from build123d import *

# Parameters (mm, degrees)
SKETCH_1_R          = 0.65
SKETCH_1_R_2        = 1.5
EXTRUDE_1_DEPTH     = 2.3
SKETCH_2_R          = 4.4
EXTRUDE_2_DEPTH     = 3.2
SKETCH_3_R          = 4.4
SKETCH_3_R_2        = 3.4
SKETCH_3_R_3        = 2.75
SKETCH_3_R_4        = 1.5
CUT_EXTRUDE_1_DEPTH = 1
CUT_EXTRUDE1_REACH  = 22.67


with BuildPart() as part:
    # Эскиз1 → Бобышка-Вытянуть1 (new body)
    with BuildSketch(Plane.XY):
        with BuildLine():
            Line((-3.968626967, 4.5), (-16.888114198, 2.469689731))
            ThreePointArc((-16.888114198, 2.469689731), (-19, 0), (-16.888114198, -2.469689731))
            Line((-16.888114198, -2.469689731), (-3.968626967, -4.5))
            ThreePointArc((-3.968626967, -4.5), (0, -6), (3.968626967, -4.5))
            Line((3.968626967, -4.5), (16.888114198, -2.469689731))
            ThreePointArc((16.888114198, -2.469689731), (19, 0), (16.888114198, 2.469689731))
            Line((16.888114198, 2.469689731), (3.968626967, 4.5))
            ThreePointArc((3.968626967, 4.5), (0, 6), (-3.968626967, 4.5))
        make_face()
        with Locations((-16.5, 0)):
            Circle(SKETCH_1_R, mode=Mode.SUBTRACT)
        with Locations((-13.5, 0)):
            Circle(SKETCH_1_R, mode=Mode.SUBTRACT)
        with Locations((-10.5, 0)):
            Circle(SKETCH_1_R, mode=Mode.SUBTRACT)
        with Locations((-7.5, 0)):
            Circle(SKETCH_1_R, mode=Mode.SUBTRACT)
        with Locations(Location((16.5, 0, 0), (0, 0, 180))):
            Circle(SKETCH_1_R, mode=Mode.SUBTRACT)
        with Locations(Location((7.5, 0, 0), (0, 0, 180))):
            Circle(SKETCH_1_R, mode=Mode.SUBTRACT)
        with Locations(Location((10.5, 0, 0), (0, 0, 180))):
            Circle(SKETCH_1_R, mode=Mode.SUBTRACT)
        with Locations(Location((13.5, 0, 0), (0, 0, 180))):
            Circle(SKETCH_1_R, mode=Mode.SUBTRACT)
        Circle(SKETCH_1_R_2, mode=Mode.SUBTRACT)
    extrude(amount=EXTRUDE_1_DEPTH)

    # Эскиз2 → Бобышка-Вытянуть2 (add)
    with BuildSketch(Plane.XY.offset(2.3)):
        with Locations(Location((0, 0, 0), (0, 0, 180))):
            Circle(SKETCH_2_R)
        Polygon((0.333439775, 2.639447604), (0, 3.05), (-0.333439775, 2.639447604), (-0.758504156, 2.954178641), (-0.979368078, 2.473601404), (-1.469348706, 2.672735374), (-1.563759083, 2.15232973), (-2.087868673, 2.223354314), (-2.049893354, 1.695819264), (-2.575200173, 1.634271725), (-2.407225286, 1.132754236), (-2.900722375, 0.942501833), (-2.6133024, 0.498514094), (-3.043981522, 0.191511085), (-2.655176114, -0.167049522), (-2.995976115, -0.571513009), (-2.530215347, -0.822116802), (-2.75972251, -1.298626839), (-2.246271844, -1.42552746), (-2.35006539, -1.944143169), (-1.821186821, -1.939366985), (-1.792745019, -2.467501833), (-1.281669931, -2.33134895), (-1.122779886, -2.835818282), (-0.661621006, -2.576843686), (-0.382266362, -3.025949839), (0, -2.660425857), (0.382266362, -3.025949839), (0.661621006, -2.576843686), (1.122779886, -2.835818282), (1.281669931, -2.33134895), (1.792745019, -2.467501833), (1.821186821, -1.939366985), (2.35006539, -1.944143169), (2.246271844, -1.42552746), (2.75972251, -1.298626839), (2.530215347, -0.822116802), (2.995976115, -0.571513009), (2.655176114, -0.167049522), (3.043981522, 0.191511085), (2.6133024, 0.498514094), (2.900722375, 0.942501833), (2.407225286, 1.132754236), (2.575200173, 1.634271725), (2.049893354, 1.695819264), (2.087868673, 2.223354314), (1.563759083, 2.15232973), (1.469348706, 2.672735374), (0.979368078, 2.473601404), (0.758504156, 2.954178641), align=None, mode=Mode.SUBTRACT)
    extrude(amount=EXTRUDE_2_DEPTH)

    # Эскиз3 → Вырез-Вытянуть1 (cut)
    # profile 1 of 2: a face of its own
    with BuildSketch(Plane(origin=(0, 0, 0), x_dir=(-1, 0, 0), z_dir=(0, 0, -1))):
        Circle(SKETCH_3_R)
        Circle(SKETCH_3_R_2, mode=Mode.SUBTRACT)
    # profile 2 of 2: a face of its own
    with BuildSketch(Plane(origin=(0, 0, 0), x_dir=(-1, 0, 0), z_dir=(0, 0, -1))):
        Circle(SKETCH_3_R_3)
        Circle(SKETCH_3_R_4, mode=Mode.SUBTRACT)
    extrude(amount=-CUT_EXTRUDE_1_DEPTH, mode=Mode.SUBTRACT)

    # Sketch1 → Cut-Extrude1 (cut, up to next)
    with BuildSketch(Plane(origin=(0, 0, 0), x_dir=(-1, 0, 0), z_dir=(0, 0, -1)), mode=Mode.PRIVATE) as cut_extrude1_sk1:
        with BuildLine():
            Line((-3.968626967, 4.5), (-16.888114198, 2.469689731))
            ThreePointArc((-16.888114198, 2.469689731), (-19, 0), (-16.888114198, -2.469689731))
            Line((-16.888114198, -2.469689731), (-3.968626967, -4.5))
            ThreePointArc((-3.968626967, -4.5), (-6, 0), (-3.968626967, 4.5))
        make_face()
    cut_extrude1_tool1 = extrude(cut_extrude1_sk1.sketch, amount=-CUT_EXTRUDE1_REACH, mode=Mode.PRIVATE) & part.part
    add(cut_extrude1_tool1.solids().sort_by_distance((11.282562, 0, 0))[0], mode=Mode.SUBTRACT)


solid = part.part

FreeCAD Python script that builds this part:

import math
import FreeCAD as App
import Part
import Sketcher
from FreeCAD import Vector


def add_polygon(sketch, points):
    """Adds a closed chain of lines whose ends are joined by coincident constraints."""
    first, n = sketch.GeometryCount, len(points)
    for a, b in zip(points, points[1:] + points[:1]):
        sketch.addGeometry(Part.LineSegment(App.Vector(*a, 0), App.Vector(*b, 0)), False)
    for i in range(n):
        sketch.addConstraint(Sketcher.Constraint("Coincident", first + i, 2, first + (i + 1) % n, 1))

doc = App.newDocument("Part")
body = doc.addObject("PartDesign::Body", "Body")

# Sketch on XY plane
sketch1 = body.newObject("Sketcher::SketchObject", "Sketch")
sketch1.AttachmentSupport = (doc.getObject("XY_Plane"), [""])
sketch1.MapMode = "FlatFace"
sketch1.addGeometry([
    Part.LineSegment(Vector(-3.968627, 4.5, 0), Vector(-16.888114, 2.46969, 0)),  # 0
    Part.ArcOfCircle(Part.Circle(Vector(-16.5, 0, 0), Vector(0, 0, 1), 2.5), math.radians(98.931045), math.radians(261.068955)),  # 1
    Part.LineSegment(Vector(-16.888114, -2.46969, 0), Vector(-3.968627, -4.5, 0)),  # 2
    Part.ArcOfCircle(Part.Circle(Vector(0, 0, 0), Vector(0, 0, 1), 6), math.radians(-131.409622), math.radians(-48.590378)),  # 3
    Part.LineSegment(Vector(3.968627, -4.5, 0), Vector(16.888114, -2.46969, 0)),  # 4
    Part.ArcOfCircle(Part.Circle(Vector(16.5, 0, 0), Vector(0, 0, 1), 2.5), math.radians(-81.068955), math.radians(81.068955)),  # 5
    Part.LineSegment(Vector(16.888114, 2.46969, 0), Vector(3.968627, 4.5, 0)),  # 6
    Part.ArcOfCircle(Part.Circle(Vector(0, 0, 0), Vector(0, 0, 1), 6), math.radians(48.590378), math.radians(131.409622)),  # 7
    Part.Circle(Vector(-16.5, 0, 0), Vector(0, 0, 1), 0.65),  # 8
    Part.Circle(Vector(-13.5, 0, 0), Vector(0, 0, 1), 0.65),  # 9
    Part.Circle(Vector(-10.5, 0, 0), Vector(0, 0, 1), 0.65),  # 10
    Part.Circle(Vector(-7.5, 0, 0), Vector(0, 0, 1), 0.65),  # 11
    Part.Circle(Vector(0, 0, 0), Vector(0, 0, 1), 1.5),  # 12
    Part.Circle(Vector(7.5, 0, 0), Vector(0, 0, 1), 0.65),  # 13
    Part.Circle(Vector(10.5, 0, 0), Vector(0, 0, 1), 0.65),  # 14
    Part.Circle(Vector(13.5, 0, 0), Vector(0, 0, 1), 0.65),  # 15
    Part.Circle(Vector(16.5, 0, 0), Vector(0, 0, 1), 0.65),  # 16
], False)
sketch1.addConstraint([
    Sketcher.Constraint("Tangent", 0, 2, 1, 1),
    Sketcher.Constraint("Tangent", 1, 2, 2, 1),
    Sketcher.Constraint("Coincident", 2, 2, 3, 1),
    Sketcher.Constraint("Coincident", 3, 2, 4, 1),
    Sketcher.Constraint("Tangent", 4, 2, 5, 1),
    Sketcher.Constraint("Tangent", 5, 2, 6, 1),
    Sketcher.Constraint("Coincident", 6, 2, 7, 1),
    Sketcher.Constraint("Coincident", 7, 2, 0, 1),
    Sketcher.Constraint("Coincident", 3, 3, -1, 1),
    Sketcher.Constraint("Coincident", 7, 3, -1, 1),
    Sketcher.Constraint("Coincident", 12, 3, -1, 1),
    Sketcher.Constraint("Coincident", 8, 3, 1, 3),
    Sketcher.Constraint("Coincident", 16, 3, 5, 3),
    Sketcher.Constraint("Equal", 1, 5),
    Sketcher.Constraint("Equal", 3, 7),
    Sketcher.Constraint("Equal", 8, 9),
    Sketcher.Constraint("Equal", 9, 10),
    Sketcher.Constraint("Equal", 10, 11),
    Sketcher.Constraint("Equal", 11, 13),
    Sketcher.Constraint("Equal", 13, 14),
    Sketcher.Constraint("Equal", 14, 15),
    Sketcher.Constraint("Equal", 15, 16),
    Sketcher.Constraint("Symmetric", 1, 3, 5, 3, -1, 1),
    Sketcher.Constraint("Symmetric", 11, 3, 13, 3, -1, 1),
    Sketcher.Constraint("Symmetric", 10, 3, 14, 3, -1, 1),
    Sketcher.Constraint("Symmetric", 9, 3, 15, 3, -1, 1),
    Sketcher.Constraint("Symmetric", 1, 2, 4, 2, -2),
    Sketcher.Constraint("PointOnObject", 9, 3, -1),
    Sketcher.Constraint("PointOnObject", 10, 3, -1),
    Sketcher.Constraint("PointOnObject", 11, 3, -1),
    Sketcher.Constraint("Parallel", 0, 4),
    Sketcher.Constraint("Parallel", 2, 6),
    Sketcher.Constraint("Diameter", 12, 3.0),
    Sketcher.Constraint("Radius", 3, 6.0),
    Sketcher.Constraint("Diameter", 8, 1.3),
    Sketcher.Constraint("Radius", 1, 2.5),
    Sketcher.Constraint("DistanceX", 1, 3, 5, 3, 33.0),
    Sketcher.Constraint("DistanceX", 1, 3, 9, 3, 3.0),
    Sketcher.Constraint("DistanceX", 9, 3, 10, 3, 3.0),
    Sketcher.Constraint("DistanceX", 10, 3, 11, 3, 3.0),
    Sketcher.Constraint("DistanceY", 2, 2, -1, 1, 4.5),
])
pad1 = body.newObject("PartDesign::Pad", "Pad")
pad1.Profile = sketch1
pad1.Length = 2.3

# Sketch on XY plane
sketch2 = body.newObject("Sketcher::SketchObject", "Sketch001")
sketch2.AttachmentSupport = (doc.getObject("XY_Plane"), [""])
sketch2.MapMode = "FlatFace"
sketch2.AttachmentOffset = App.Placement(Vector(0, 0, 2.3), App.Rotation())
sketch2.addGeometry(Part.Circle(Vector(0, 0, 0), Vector(0, 0, 1), 4.4), False)  # 0
add_polygon(sketch2, [(0, 3.05), (0.33344, 2.639448), (0.758504, 2.954179), (0.979368, 2.473601), (1.469349, 2.672735), (1.563759, 2.15233), (2.087869, 2.223354), (2.049893, 1.695819), (2.5752, 1.634272), (2.407225, 1.132754), (2.900722, 0.942502), (2.613302, 0.498514), (3.043982, 0.191511), (2.655176, -0.16705), (2.995976, -0.571513), (2.530215, -0.822117), (2.759723, -1.298627), (2.246272, -1.425527), (2.350065, -1.944143), (1.821187, -1.939367), (1.792745, -2.467502), (1.28167, -2.331349), (1.12278, -2.835818), (0.661621, -2.576844), (0.382266, -3.02595), (0, -2.660426), (-0.382266, -3.02595), (-0.661621, -2.576844), (-1.12278, -2.835818), (-1.28167, -2.331349), (-1.792745, -2.467502), (-1.821187, -1.939367), (-2.350065, -1.944143), (-2.246272, -1.425527), (-2.759723, -1.298627), (-2.530215, -0.822117), (-2.995976, -0.571513), (-2.655176, -0.16705), (-3.043982, 0.191511), (-2.613302, 0.498514), (-2.900722, 0.942502), (-2.407225, 1.132754), (-2.5752, 1.634272), (-2.049893, 1.695819), (-2.087869, 2.223354), (-1.563759, 2.15233), (-1.469349, 2.672735), (-0.979368, 2.473601), (-0.758504, 2.954179), (-0.33344, 2.639448)])  # lines 1-50
sketch2.addConstraint([
    Sketcher.Constraint("Coincident", 0, 3, -1, 1),
    Sketcher.Constraint("Symmetric", 24, 2, 26, 2, -2),
    Sketcher.Constraint("Symmetric", 23, 2, 27, 2, -2),
    Sketcher.Constraint("Symmetric", 22, 2, 28, 2, -2),
    Sketcher.Constraint("Symmetric", 21, 2, 29, 2, -2),
    Sketcher.Constraint("Symmetric", 20, 2, 30, 2, -2),
    Sketcher.Constraint("Symmetric", 19, 2, 31, 2, -2),
    Sketcher.Constraint("Symmetric", 18, 2, 32, 2, -2),
    Sketcher.Constraint("Symmetric", 17, 2, 33, 2, -2),
    Sketcher.Constraint("Symmetric", 16, 2, 34, 2, -2),
    Sketcher.Constraint("Symmetric", 15, 2, 35, 2, -2),
    Sketcher.Constraint("Symmetric", 14, 2, 36, 2, -2),
    Sketcher.Constraint("Symmetric", 13, 2, 37, 2, -2),
    Sketcher.Constraint("Symmetric", 12, 2, 38, 2, -2),
    Sketcher.Constraint("Symmetric", 11, 2, 39, 2, -2),
    Sketcher.Constraint("Symmetric", 10, 2, 40, 2, -2),
    Sketcher.Constraint("Symmetric", 9, 2, 41, 2, -2),
    Sketcher.Constraint("Symmetric", 8, 2, 42, 2, -2),
    Sketcher.Constraint("Symmetric", 7, 2, 43, 2, -2),
    Sketcher.Constraint("Symmetric", 6, 2, 44, 2, -2),
    Sketcher.Constraint("Symmetric", 5, 2, 45, 2, -2),
    Sketcher.Constraint("Symmetric", 4, 2, 46, 2, -2),
    Sketcher.Constraint("Symmetric", 3, 2, 47, 2, -2),
    Sketcher.Constraint("Symmetric", 2, 2, 48, 2, -2),
    Sketcher.Constraint("Symmetric", 1, 2, 49, 2, -2),
    Sketcher.Constraint("PointOnObject", 25, 2, -2),
    Sketcher.Constraint("PointOnObject", 50, 2, -2),
    Sketcher.Constraint("Equal", 1, 2),
    Sketcher.Constraint("Equal", 2, 3),
    Sketcher.Constraint("Equal", 3, 4),
    Sketcher.Constraint("Equal", 4, 5),
    Sketcher.Constraint("Equal", 5, 6),
    Sketcher.Constraint("Equal", 6, 7),
    Sketcher.Constraint("Equal", 7, 8),
    Sketcher.Constraint("Equal", 8, 9),
    Sketcher.Constraint("Equal", 9, 10),
    Sketcher.Constraint("Equal", 10, 11),
    Sketcher.Constraint("Equal", 11, 12),
    Sketcher.Constraint("Equal", 12, 13),
    Sketcher.Constraint("Equal", 13, 14),
    Sketcher.Constraint("Equal", 14, 15),
    Sketcher.Constraint("Equal", 15, 16),
    Sketcher.Constraint("Equal", 16, 17),
    Sketcher.Constraint("Equal", 17, 18),
    Sketcher.Constraint("Equal", 18, 19),
    Sketcher.Constraint("Equal", 19, 20),
    Sketcher.Constraint("Equal", 20, 21),
    Sketcher.Constraint("Equal", 21, 22),
    Sketcher.Constraint("Equal", 22, 23),
    Sketcher.Constraint("Equal", 23, 24),
    Sketcher.Constraint("Equal", 24, 25),
    Sketcher.Constraint("Diameter", 0, 8.8),
    Sketcher.Constraint("DistanceY", -1, 1, 50, 2, 3.05),
    Sketcher.Constraint("Distance", 1, 0.5289),
    Sketcher.Constraint("DistanceY", -1, 1, 3, 2, 2.473601),
    Sketcher.Constraint("DistanceX", -1, 1, 8, 2, 2.5752),
    Sketcher.Constraint("DistanceY", -1, 1, 10, 2, 0.942502),
    Sketcher.Constraint("DistanceY", 20, 2, -1, 1, 2.467502),
    Sketcher.Constraint("DistanceX", 3, 2, 6, 2, 1.108501),
    Sketcher.Constraint("DistanceY", 9, 2, 6, 2, 1.0906),
    Sketcher.Constraint("DistanceX", 13, 2, 14, 2, 0.3408),
    Sketcher.Constraint("DistanceY", 17, 2, 16, 2, 0.126901),
    Sketcher.Constraint("DistanceX", 21, 2, 17, 2, 0.964602),
    Sketcher.Constraint("DistanceY", 23, 2, 18, 2, 0.632701),
    Sketcher.Constraint("DistanceY", 24, 2, 21, 2, 0.694601),
    Sketcher.Constraint("DistanceX", 27, 2, 22, 2, 1.784401),
    Sketcher.Constraint("DistanceX", -1, 1, 1, 2, 0.33344),
    Sketcher.Constraint("DistanceY", -1, 1, 2, 2, 2.954179),
    Sketcher.Constraint("DistanceX", -1, 1, 4, 2, 1.469349),
    Sketcher.Constraint("DistanceX", -1, 1, 5, 2, 1.563759),
    Sketcher.Constraint("DistanceY", -1, 1, 8, 2, 1.634272),
    Sketcher.Constraint("DistanceX", -1, 1, 12, 2, 3.043982),
    Sketcher.Constraint("DistanceY", -1, 1, 12, 2, 0.191511),
    Sketcher.Constraint("DistanceY", 13, 2, -1, 1, 0.16705),
    Sketcher.Constraint("DistanceX", -1, 1, 17, 2, 2.246272),
    Sketcher.Constraint("DistanceY", 21, 2, -1, 1, 2.331349),
    Sketcher.Constraint("DistanceX", -1, 1, 22, 2, 1.12278),
    Sketcher.Constraint("DistanceX", 15, 2, 14, 2, 0.465761),
])
pad2 = body.newObject("PartDesign::Pad", "Pad001")
pad2.Profile = sketch2
pad2.Length = 3.2

# Sketch on XY plane
sketch3 = body.newObject("Sketcher::SketchObject", "Sketch002")
sketch3.AttachmentSupport = (doc.getObject("XY_Plane"), [""])
sketch3.MapMode = "FlatFace"
sketch3.addGeometry([
    Part.Circle(Vector(0, 0, 0), Vector(0, 0, 1), 4.4),
    Part.Circle(Vector(0, 0, 0), Vector(0, 0, 1), 3.4),
    Part.Circle(Vector(0, 0, 0), Vector(0, 0, 1), 2.75),
    Part.Circle(Vector(0, 0, 0), Vector(0, 0, 1), 1.5),
], False)
sketch3.addConstraint([
    Sketcher.Constraint("Coincident", 0, 3, -1, 1),
    Sketcher.Constraint("Coincident", 1, 3, -1, 1),
    Sketcher.Constraint("Coincident", 2, 3, -1, 1),
    Sketcher.Constraint("Coincident", 3, 3, -1, 1),
    Sketcher.Constraint("Diameter", 3, 3.0),
    Sketcher.Constraint("Diameter", 0, 8.8),
    Sketcher.Constraint("Diameter", 1, 6.8),
    Sketcher.Constraint("Diameter", 2, 5.5),
])
pocket1 = body.newObject("PartDesign::Pocket", "Pocket")
pocket1.Profile = sketch3
pocket1.Length = 1
pocket1.Reversed = True

# Sketch on XY plane
sketch4 = body.newObject("Sketcher::SketchObject", "Sketch003")
sketch4.AttachmentSupport = (doc.getObject("XY_Plane"), [""])
sketch4.MapMode = "FlatFace"
sketch4.addGeometry([
    Part.LineSegment(Vector(3.968627, 4.5, 0), Vector(16.888114, 2.46969, 0)),
    Part.ArcOfCircle(Part.Circle(Vector(16.5, 0, 0), Vector(0, 0, 1), 2.5), math.radians(-81.068955), math.radians(81.068955)),
    Part.LineSegment(Vector(16.888114, -2.46969, 0), Vector(3.968627, -4.5, 0)),
    Part.ArcOfCircle(Part.Circle(Vector(0, 0, 0), Vector(0, 0, 1), 6), math.radians(-48.590378), math.radians(48.590378)),
], False)
sketch4.addConstraint([
    Sketcher.Constraint("Tangent", 0, 2, 1, 2),
    Sketcher.Constraint("Tangent", 1, 1, 2, 1),
    Sketcher.Constraint("Coincident", 2, 2, 3, 1),
    Sketcher.Constraint("Coincident", 3, 2, 0, 1),
    Sketcher.Constraint("Coincident", 3, 3, -1, 1),
    Sketcher.Constraint("Symmetric", 0, 2, 1, 1, -1),
    Sketcher.Constraint("Radius", 3, 6.0),
    Sketcher.Constraint("Radius", 1, 2.5),
    Sketcher.Constraint("DistanceY", 2, 2, 3, 2, 9.0),
    Sketcher.Constraint("DistanceX", -1, 1, 1, 3, 16.5),
])
pocket2 = body.newObject("PartDesign::Pocket", "Pocket001")
pocket2.Profile = sketch4
pocket2.Type = "UpToFirst"
pocket2.Reversed = True

doc.recompute()
